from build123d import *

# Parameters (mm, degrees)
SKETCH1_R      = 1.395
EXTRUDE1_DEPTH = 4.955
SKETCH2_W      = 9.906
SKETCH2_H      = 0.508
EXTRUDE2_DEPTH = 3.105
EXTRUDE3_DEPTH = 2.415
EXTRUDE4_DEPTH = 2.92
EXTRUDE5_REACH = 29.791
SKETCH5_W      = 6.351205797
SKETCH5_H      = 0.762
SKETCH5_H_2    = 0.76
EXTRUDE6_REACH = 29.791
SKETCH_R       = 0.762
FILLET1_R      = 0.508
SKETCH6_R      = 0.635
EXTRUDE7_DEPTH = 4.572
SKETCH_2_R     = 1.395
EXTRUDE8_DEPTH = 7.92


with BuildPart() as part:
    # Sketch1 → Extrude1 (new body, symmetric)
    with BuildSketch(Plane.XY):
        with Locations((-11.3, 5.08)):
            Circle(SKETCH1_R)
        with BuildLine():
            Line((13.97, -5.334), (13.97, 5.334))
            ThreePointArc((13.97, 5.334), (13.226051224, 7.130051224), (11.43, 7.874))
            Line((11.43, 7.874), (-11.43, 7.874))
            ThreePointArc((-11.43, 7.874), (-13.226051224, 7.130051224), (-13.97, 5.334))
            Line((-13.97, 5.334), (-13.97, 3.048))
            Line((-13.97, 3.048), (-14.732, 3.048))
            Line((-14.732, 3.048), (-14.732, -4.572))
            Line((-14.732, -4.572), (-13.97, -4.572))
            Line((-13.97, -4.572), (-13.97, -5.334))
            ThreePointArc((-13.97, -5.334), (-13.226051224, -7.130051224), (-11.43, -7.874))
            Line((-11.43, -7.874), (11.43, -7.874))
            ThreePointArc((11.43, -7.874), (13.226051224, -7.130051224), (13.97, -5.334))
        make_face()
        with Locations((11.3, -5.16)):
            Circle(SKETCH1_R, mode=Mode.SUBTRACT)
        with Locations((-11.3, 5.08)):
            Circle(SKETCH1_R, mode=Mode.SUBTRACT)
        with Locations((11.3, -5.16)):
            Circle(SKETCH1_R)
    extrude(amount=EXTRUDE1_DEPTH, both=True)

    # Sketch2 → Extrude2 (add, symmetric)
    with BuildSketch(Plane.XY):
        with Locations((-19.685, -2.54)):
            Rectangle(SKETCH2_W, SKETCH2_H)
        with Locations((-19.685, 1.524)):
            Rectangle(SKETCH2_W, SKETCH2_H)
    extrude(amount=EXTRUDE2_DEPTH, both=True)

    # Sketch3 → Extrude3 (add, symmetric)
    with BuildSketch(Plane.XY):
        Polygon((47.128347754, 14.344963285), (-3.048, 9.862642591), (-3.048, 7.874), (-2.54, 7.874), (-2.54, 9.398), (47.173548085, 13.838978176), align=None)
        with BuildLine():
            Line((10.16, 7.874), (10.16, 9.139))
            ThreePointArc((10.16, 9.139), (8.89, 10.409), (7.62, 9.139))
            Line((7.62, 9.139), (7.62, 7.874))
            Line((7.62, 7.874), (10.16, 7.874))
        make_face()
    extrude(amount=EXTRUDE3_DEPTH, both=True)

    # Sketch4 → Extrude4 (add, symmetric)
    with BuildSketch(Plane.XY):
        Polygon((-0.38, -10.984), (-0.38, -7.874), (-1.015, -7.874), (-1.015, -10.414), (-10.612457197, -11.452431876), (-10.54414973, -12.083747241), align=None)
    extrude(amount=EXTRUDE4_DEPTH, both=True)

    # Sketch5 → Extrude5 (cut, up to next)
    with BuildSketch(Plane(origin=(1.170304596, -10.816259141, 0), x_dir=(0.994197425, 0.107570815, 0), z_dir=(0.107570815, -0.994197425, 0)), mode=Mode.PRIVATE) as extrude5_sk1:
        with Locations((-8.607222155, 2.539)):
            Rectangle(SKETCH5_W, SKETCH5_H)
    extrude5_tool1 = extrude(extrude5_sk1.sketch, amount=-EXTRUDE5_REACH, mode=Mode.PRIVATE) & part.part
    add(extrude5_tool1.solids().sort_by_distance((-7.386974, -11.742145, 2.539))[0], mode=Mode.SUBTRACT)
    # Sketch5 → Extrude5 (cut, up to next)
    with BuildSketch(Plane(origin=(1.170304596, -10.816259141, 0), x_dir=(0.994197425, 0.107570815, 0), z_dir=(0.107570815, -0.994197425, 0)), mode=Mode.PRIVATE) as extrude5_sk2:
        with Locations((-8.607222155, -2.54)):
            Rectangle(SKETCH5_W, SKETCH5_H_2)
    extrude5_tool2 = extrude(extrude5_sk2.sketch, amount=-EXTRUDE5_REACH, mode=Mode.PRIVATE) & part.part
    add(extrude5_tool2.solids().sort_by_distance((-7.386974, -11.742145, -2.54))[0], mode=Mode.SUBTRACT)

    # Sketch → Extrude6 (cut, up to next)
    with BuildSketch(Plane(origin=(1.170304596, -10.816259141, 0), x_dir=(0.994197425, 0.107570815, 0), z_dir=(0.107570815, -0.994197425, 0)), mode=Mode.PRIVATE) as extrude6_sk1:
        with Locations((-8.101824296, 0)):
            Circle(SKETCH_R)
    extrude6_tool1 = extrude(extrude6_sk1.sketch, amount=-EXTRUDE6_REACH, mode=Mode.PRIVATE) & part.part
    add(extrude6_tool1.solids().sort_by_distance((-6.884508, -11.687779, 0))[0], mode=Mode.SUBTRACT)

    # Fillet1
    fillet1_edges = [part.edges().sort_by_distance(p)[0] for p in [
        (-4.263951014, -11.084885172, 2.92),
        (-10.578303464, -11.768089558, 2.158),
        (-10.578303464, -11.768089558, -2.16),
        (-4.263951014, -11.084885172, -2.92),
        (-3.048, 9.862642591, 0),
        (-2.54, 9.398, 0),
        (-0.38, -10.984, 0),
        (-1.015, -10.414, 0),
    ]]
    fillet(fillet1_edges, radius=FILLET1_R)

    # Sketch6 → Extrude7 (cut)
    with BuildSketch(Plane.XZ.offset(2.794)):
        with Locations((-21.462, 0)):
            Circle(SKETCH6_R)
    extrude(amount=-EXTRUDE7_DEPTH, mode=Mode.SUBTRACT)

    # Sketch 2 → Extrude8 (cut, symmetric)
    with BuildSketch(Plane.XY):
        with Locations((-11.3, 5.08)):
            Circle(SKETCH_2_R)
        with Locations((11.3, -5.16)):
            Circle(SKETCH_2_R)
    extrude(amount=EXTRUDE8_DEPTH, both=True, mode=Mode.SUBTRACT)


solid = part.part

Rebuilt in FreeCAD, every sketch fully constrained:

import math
import FreeCAD as App
import Part
import Sketcher
from FreeCAD import Vector
Q = App.Units.Quantity


def edges_at(feature, points):
    """Names of the edges that pass closest to the given points."""
    edges = feature.Shape.Edges
    near = lambda p: min(range(len(edges)), key=lambda i: edges[i].distToShape(Part.Vertex(*p))[0])
    return sorted({f"Edge{near(p) + 1}" for p in points})


def add_polygon(sketch, points):
    """Adds a closed chain of lines whose ends are joined by coincident constraints."""
    first, n = sketch.GeometryCount, len(points)
    for a, b in zip(points, points[1:] + points[:1]):
        sketch.addGeometry(Part.LineSegment(App.Vector(*a, 0), App.Vector(*b, 0)), False)
    for i in range(n):
        sketch.addConstraint(Sketcher.Constraint("Coincident", first + i, 2, first + (i + 1) % n, 1))

doc = App.newDocument("Part")
body = doc.addObject("PartDesign::Body", "Body")

sketch1 = doc.addObject("Sketcher::SketchObject", "Sketch")
body.addObject(sketch1)
sketch1.AttachmentSupport = (doc.XY_Plane, [""])
sketch1.MapMode = "FlatFace"
sketch1.addGeometry([
    Part.LineSegment(Vector(14, -5.3, 0), Vector(14, 5.3, 0)),
    Part.ArcOfCircle(Part.Circle(Vector(11.4, 5.3, 0), Vector(0, 0, 1), 2.5), math.radians(0), math.radians(90)),
    Part.LineSegment(Vector(11.4, 7.9, 0), Vector(-11.4, 7.9, 0)),
    Part.ArcOfCircle(Part.Circle(Vector(-11.4, 5.3, 0), Vector(0, 0, 1), 2.5), math.radians(90), math.radians(180)),
    Part.LineSegment(Vector(-14, 5.3, 0), Vector(-14, 3, 0)),
    Part.LineSegment(Vector(-14, 3, 0), Vector(-14.7, 3, 0)),
    Part.LineSegment(Vector(-14.7, 3, 0), Vector(-14.7, -4.6, 0)),
    Part.LineSegment(Vector(-14.7, -4.6, 0), Vector(-14, -4.6, 0)),
    Part.LineSegment(Vector(-14, -4.6, 0), Vector(-14, -5.3, 0)),
    Part.ArcOfCircle(Part.Circle(Vector(-11.4, -5.3, 0), Vector(0, 0, 1), 2.5), math.radians(-180), math.radians(-90)),
    Part.LineSegment(Vector(-11.4, -7.9, 0), Vector(11.4, -7.9, 0)),
    Part.ArcOfCircle(Part.Circle(Vector(11.4, -5.3, 0), Vector(0, 0, 1), 2.5), math.radians(-90), math.radians(0)),
    Part.Circle(Vector(-11.3, 5.1, 0), Vector(0, 0, 1), 1.4),
], False)
sketch1.addConstraint([
    Sketcher.Constraint("Tangent", 0, 2, 1, 1),
    Sketcher.Constraint("Tangent", 1, 2, 2, 1),
    Sketcher.Constraint("Tangent", 2, 2, 3, 1),
    Sketcher.Constraint("Tangent", 3, 2, 4, 1),
    Sketcher.Constraint("Coincident", 4, 2, 5, 1),
    Sketcher.Constraint("Coincident", 5, 2, 6, 1),
    Sketcher.Constraint("Coincident", 6, 2, 7, 1),
    Sketcher.Constraint("Coincident", 7, 2, 8, 1),
    Sketcher.Constraint("Tangent", 8, 2, 9, 1),
    Sketcher.Constraint("Tangent", 9, 2, 10, 1),
    Sketcher.Constraint("Tangent", 10, 2, 11, 1),
    Sketcher.Constraint("Tangent", 11, 2, 0, 1),
    Sketcher.Constraint("Vertical", 0),
    Sketcher.Constraint("Horizontal", 2),
    Sketcher.Constraint("Vertical", 4),
    Sketcher.Constraint("Horizontal", 5),
    Sketcher.Constraint("Vertical", 6),
    Sketcher.Constraint("Horizontal", 7),
    Sketcher.Constraint("Vertical", 8),
    Sketcher.Constraint("Horizontal", 10),
    Sketcher.Constraint("Equal", 1, 3),
    Sketcher.Constraint("Equal", 3, 9),
    Sketcher.Constraint("Equal", 9, 11),
    Sketcher.Constraint("Symmetric", 1, 3, 9, 3, -1, 1),
    Sketcher.Constraint("Vertical", 3, 3, 9, 3),
    Sketcher.Constraint("Equal", 7, 8),
    Sketcher.Constraint("Radius", 1, Q("0.1 in")),
    Sketcher.Constraint("DistanceX", 2, 2, 2, 1, Q("0.9 in")),
    Sketcher.Constraint("DistanceY", 6, 2, 6, 1, Q("0.3 in")),
    Sketcher.Constraint("DistanceX", 5, 2, 5, 1, Q("0.03 in")),
    Sketcher.Constraint("DistanceY", 0, 1, 0, 2, Q("0.42 in")),
    Sketcher.Constraint("DistanceY", -1, 1, 12, 3, Q("0.2 in")),
    Sketcher.Constraint("Diameter", 12, Q("2.79 mm")),
    Sketcher.Constraint("DistanceX", 12, 3, -1, 1, Q("11.3 mm")),
])
pad1 = doc.addObject("PartDesign::Pad", "Pad")
body.addObject(pad1)
pad1.Profile = sketch1
pad1.Length = 9.91
pad1.Midplane = True

sketch2 = doc.addObject("Sketcher::SketchObject", "Sketch001")
body.addObject(sketch2)
sketch2.AttachmentSupport = (doc.XY_Plane, [""])
sketch2.MapMode = "FlatFace"
add_polygon(sketch2, [(-24.6, -2.3), (-24.6, -2.8), (-14.7, -2.8), (-14.7, -2.3)])
add_polygon(sketch2, [(-24.6, 1.8), (-24.6, 1.3), (-14.7, 1.3), (-14.7, 1.8)])
sketch2.addConstraint([
    Sketcher.Constraint("Vertical", 0),
    Sketcher.Constraint("Horizontal", 1),
    Sketcher.Constraint("Vertical", 2),
    Sketcher.Constraint("Horizontal", 3),
    Sketcher.Constraint("Vertical", 4),
    Sketcher.Constraint("Horizontal", 5),
    Sketcher.Constraint("Vertical", 6),
    Sketcher.Constraint("Horizontal", 7),
    Sketcher.Constraint("Vertical", 3, 2, 4, 2),
    Sketcher.Constraint("Vertical", 2, 2, 5, 2),
    Sketcher.Constraint("Equal", 2, 4),
    Sketcher.Constraint("DistanceX", 1, 1, 1, 2, Q("0.39 in")),
    Sketcher.Constraint("DistanceY", 0, 2, 0, 1, Q("0.02 in")),
    Sketcher.Constraint("DistanceX", 0, 2, -1, 1, Q("0.97 in")),
    Sketcher.Constraint("DistanceY", 0, 2, -1, 1, Q("0.11 in")),
    Sketcher.Constraint("DistanceY", -1, 1, 4, 2, Q("0.05 in")),
])
pad2 = doc.addObject("PartDesign::Pad", "Pad001")
body.addObject(pad2)
pad2.Profile = sketch2
pad2.Length = 6.21
pad2.Midplane = True

sketch3 = doc.addObject("Sketcher::SketchObject", "Sketch002")
body.addObject(sketch3)
sketch3.AttachmentSupport = (doc.XY_Plane, [""])
sketch3.MapMode = "FlatFace"
add_polygon(sketch3, [(47.128348, 14.344963), (-3.048, 9.862643), (-3.048, 7.874), (-2.54, 7.874), (-2.54, 9.398), (47.173548, 13.838978)])
sketch3.addGeometry(Part.LineSegment(Vector(10.16, 7.874, 0), Vector(10.16, 9.139, 0)), False)
sketch3.addGeometry(Part.ArcOfCircle(Part.Circle(Vector(8.89, 9.139, 0), Vector(0, 0, 1), 1.27), math.radians(0), math.radians(180)), False)
sketch3.addGeometry(Part.LineSegment(Vector(7.62, 9.139, 0), Vector(7.62, 7.874, 0)), False)
sketch3.addGeometry(Part.LineSegment(Vector(7.62, 7.874, 0), Vector(10.16, 7.874, 0)), False)
sketch3.addConstraint([
    Sketcher.Constraint("Coincident", 6, 2, 7, 1),
    Sketcher.Constraint("Coincident", 7, 2, 8, 1),
    Sketcher.Constraint("Coincident", 8, 2, 9, 1),
    Sketcher.Constraint("Coincident", 9, 2, 6, 1),
    Sketcher.Constraint("Vertical", 1),
    Sketcher.Constraint("Horizontal", 2),
    Sketcher.Constraint("Vertical", 3),
    Sketcher.Constraint("Vertical", 6),
    Sketcher.Constraint("Vertical", 8),
    Sketcher.Constraint("Horizontal", 9),
    Sketcher.Constraint("Radius", 7, Q("0.05 in")),
    Sketcher.Constraint("DistanceX", 2, 1, 2, 2, Q("0.02 in")),
    Sketcher.Constraint("DistanceY", 3, 1, 3, 2, Q("0.06 in")),
    Sketcher.Constraint("DistanceX", 2, 2, -1, 1, Q("0.1 in")),
    Sketcher.Constraint("DistanceX", -1, 1, 6, 2, Q("0.4 in")),
    Sketcher.Constraint("Distance", 5, Q("0.02 in")),
    Sketcher.Constraint("DistanceY", -1, 1, 1, 2, Q("0.31 in")),
    Sketcher.Constraint("DistanceY", -1, 1, 8, 2, Q("0.31 in")),
    Sketcher.Constraint("DistanceY", 6, 1, 6, 2, Q("1.265 mm")),
    Sketcher.Constraint("DistanceY", 8, 2, 8, 1, Q("1.265 mm")),
    Sketcher.Constraint("DistanceY", -1, 1, 7, 3, Q("9.139 mm")),
    Sketcher.Constraint("DistanceX", 5, 2, 4, 2, Q("0.0452 mm")),
    Sketcher.Constraint("DistanceY", 1, 2, 1, 1, Q("1.988643 mm")),
    Sketcher.Constraint("DistanceX", -1, 1, 4, 2, Q("47.173548 mm")),
    Sketcher.Constraint("DistanceY", -1, 1, 4, 2, Q("13.838978 mm")),
])
pad3 = doc.addObject("PartDesign::Pad", "Pad002")
body.addObject(pad3)
pad3.Profile = sketch3
pad3.Length = 4.83
pad3.Midplane = True

sketch4 = doc.addObject("Sketcher::SketchObject", "Sketch003")
body.addObject(sketch4)
sketch4.AttachmentSupport = (doc.XY_Plane, [""])
sketch4.MapMode = "FlatFace"
add_polygon(sketch4, [(-0.4, -11), (-0.4, -7.9), (-1, -7.9), (-1, -10.4), (-10.6, -11.5), (-10.5, -12.1)])
sketch4.addConstraint([
    Sketcher.Constraint("Vertical", 0),
    Sketcher.Constraint("Horizontal", 1),
    Sketcher.Constraint("Vertical", 2),
    Sketcher.Constraint("Perpendicular", 3, 4),
    Sketcher.Constraint("Perpendicular", 4, 5),
    Sketcher.Constraint("DistanceY", 2, 2, 2, 1, Q("0.1 in")),
    Sketcher.Constraint("DistanceX", 1, 2, 1, 1, Q("0.025 in")),
    Sketcher.Constraint("DistanceY", 0, 2, -1, 1, Q("0.31 in")),
    Sketcher.Constraint("Distance", 4, Q("0.025 in")),
    Sketcher.Constraint("DistanceY", 0, 1, 0, 2, Q("3.11 mm")),
    Sketcher.Constraint("DistanceX", 0, 2, -1, 1, Q("0.38 mm")),
    Sketcher.Constraint("DistanceY", 3, 2, -1, 1, Q("11.452432 mm")),
])
pad4 = doc.addObject("PartDesign::Pad", "Pad003")
body.addObject(pad4)
pad4.Profile = sketch4
pad4.Length = 5.84
pad4.Midplane = True

sketch5 = doc.addObject("Sketcher::SketchObject", "Sketch004")
body.addObject(sketch5)
sketch5.Placement = App.Placement(Vector(1.170305, -10.816259, 0), App.Rotation(Vector(0.994197425, 0.107570815, 0), Vector(0, 0, 1), Vector(0.107570815, -0.994197425, 0), "ZXY"))
add_polygon(sketch5, [(-11.8, 2.9), (-11.8, 2.2), (-5.4, 2.2), (-5.4, 2.9)])
sketch5.addConstraint([
    Sketcher.Constraint("Vertical", 0),
    Sketcher.Constraint("Horizontal", 1),
    Sketcher.Constraint("Vertical", 2),
    Sketcher.Constraint("Horizontal", 3),
    Sketcher.Constraint("DistanceY", 0, 2, 0, 1, Q("0.03 in")),
    Sketcher.Constraint("DistanceY", -1, 1, 0, 2, Q("2.158 mm")),
    Sketcher.Constraint("DistanceX", 1, 1, 1, 2, Q("6.351206 mm")),
    Sketcher.Constraint("DistanceX", 1, 2, -1, 1, Q("5.431619 mm")),
])
pocket1 = doc.addObject("PartDesign::Pocket", "Pocket")
body.addObject(pocket1)
pocket1.Profile = sketch5
pocket1.Type = "UpToFirst"

sketch6 = doc.addObject("Sketcher::SketchObject", "Sketch005")
body.addObject(sketch6)
sketch6.Placement = App.Placement(Vector(1.170305, -10.816259, 0), App.Rotation(Vector(0.994197425, 0.107570815, 0), Vector(0, 0, 1), Vector(0.107570815, -0.994197425, 0), "ZXY"))
add_polygon(sketch6, [(-11.8, -2.2), (-11.8, -2.9), (-5.4, -2.9), (-5.4, -2.2)])
sketch6.addConstraint([
    Sketcher.Constraint("Vertical", 0),
    Sketcher.Constraint("Horizontal", 1),
    Sketcher.Constraint("Vertical", 2),
    Sketcher.Constraint("Horizontal", 3),
    Sketcher.Constraint("DistanceY", 0, 2, 0, 1, Q("0.76 mm")),
    Sketcher.Constraint("DistanceY", 0, 2, -1, 1, Q("2.92 mm")),
    Sketcher.Constraint("DistanceX", 1, 1, 1, 2, Q("6.351206 mm")),
    Sketcher.Constraint("DistanceX", 1, 2, -1, 1, Q("5.431619 mm")),
])
pocket2 = doc.addObject("PartDesign::Pocket", "Pocket001")
body.addObject(pocket2)
pocket2.Profile = sketch6
pocket2.Type = "UpToFirst"

sketch7 = doc.addObject("Sketcher::SketchObject", "Sketch006")
body.addObject(sketch7)
sketch7.Placement = App.Placement(Vector(1.170305, -10.816259, 0), App.Rotation(Vector(0.994197425, 0.107570815, 0), Vector(0, 0, 1), Vector(0.107570815, -0.994197425, 0), "ZXY"))
sketch7.addGeometry(Part.Circle(Vector(-8.1, 0, 0), Vector(0, 0, 1), 0.8), False)
sketch7.addConstraint([
    Sketcher.Constraint("PointOnObject", 0, 3, -1),
    Sketcher.Constraint("Diameter", 0, Q("0.06 in")),
    Sketcher.Constraint("DistanceX", 0, 3, -1, 1, Q("8.101824 mm")),
])
pocket3 = doc.addObject("PartDesign::Pocket", "Pocket002")
body.addObject(pocket3)
pocket3.Profile = sketch7
pocket3.Type = "UpToFirst"
doc.recompute()

fillet = doc.addObject("PartDesign::Fillet", "Fillet")
body.addObject(fillet)
fillet.Base = (pocket3, edges_at(pocket3, [
    (-4.264, -11.085, 2.92),
    (-10.578, -11.768, 2.158),
    (-10.578, -11.768, -2.16),
    (-4.264, -11.085, -2.92),
    (-3.048, 9.863, 0),
    (-2.54, 9.398, 0),
    (-0.38, -10.984, 0),
    (-1.015, -10.414, 0),
]))
fillet.Radius = Q("0.02 in")

sketch8 = doc.addObject("Sketcher::SketchObject", "Sketch007")
body.addObject(sketch8)
sketch8.AttachmentSupport = (doc.XZ_Plane, [""])
sketch8.MapMode = "FlatFace"
sketch8.AttachmentOffset = App.Placement(Vector(0, 0, 0.11 * 25.4), App.Rotation())
sketch8.addGeometry(Part.Circle(Vector(-21.5, 0, 0), Vector(0, 0, 1), 0.6), False)
sketch8.addConstraint([
    Sketcher.Constraint("PointOnObject", 0, 3, -1),
    Sketcher.Constraint("Diameter", 0, Q("0.05 in")),
    Sketcher.Constraint("DistanceX", 0, 3, -1, 1, Q("21.462 mm")),
])
pocket4 = doc.addObject("PartDesign::Pocket", "Pocket003")
body.addObject(pocket4)
pocket4.Profile = sketch8
pocket4.Length = Q("0.18 in")

sketch9 = doc.addObject("Sketcher::SketchObject", "Sketch008")
body.addObject(sketch9)
sketch9.AttachmentSupport = (doc.XY_Plane, [""])
sketch9.MapMode = "FlatFace"
sketch9.addGeometry([
    Part.Circle(Vector(-11.3, 5.1, 0), Vector(0, 0, 1), 1.4),
    Part.Circle(Vector(11.3, -5.2, 0), Vector(0, 0, 1), 1.4),
], False)
sketch9.addConstraint([
    Sketcher.Constraint("Equal", 0, 1),
    Sketcher.Constraint("DistanceY", -1, 1, 0, 3, Q("0.2 in")),
    Sketcher.Constraint("Diameter", 0, Q("2.79 mm")),
    Sketcher.Constraint("DistanceX", 0, 3, -1, 1, Q("11.3 mm")),
    Sketcher.Constraint("DistanceX", -1, 1, 1, 3, Q("11.3 mm")),
    Sketcher.Constraint("DistanceY", 1, 3, -1, 1, Q("5.16 mm")),
])
pocket5 = doc.addObject("PartDesign::Pocket", "Pocket004")
body.addObject(pocket5)
pocket5.Profile = sketch9
pocket5.Length = 15.84
pocket5.Midplane = True

doc.recompute()
